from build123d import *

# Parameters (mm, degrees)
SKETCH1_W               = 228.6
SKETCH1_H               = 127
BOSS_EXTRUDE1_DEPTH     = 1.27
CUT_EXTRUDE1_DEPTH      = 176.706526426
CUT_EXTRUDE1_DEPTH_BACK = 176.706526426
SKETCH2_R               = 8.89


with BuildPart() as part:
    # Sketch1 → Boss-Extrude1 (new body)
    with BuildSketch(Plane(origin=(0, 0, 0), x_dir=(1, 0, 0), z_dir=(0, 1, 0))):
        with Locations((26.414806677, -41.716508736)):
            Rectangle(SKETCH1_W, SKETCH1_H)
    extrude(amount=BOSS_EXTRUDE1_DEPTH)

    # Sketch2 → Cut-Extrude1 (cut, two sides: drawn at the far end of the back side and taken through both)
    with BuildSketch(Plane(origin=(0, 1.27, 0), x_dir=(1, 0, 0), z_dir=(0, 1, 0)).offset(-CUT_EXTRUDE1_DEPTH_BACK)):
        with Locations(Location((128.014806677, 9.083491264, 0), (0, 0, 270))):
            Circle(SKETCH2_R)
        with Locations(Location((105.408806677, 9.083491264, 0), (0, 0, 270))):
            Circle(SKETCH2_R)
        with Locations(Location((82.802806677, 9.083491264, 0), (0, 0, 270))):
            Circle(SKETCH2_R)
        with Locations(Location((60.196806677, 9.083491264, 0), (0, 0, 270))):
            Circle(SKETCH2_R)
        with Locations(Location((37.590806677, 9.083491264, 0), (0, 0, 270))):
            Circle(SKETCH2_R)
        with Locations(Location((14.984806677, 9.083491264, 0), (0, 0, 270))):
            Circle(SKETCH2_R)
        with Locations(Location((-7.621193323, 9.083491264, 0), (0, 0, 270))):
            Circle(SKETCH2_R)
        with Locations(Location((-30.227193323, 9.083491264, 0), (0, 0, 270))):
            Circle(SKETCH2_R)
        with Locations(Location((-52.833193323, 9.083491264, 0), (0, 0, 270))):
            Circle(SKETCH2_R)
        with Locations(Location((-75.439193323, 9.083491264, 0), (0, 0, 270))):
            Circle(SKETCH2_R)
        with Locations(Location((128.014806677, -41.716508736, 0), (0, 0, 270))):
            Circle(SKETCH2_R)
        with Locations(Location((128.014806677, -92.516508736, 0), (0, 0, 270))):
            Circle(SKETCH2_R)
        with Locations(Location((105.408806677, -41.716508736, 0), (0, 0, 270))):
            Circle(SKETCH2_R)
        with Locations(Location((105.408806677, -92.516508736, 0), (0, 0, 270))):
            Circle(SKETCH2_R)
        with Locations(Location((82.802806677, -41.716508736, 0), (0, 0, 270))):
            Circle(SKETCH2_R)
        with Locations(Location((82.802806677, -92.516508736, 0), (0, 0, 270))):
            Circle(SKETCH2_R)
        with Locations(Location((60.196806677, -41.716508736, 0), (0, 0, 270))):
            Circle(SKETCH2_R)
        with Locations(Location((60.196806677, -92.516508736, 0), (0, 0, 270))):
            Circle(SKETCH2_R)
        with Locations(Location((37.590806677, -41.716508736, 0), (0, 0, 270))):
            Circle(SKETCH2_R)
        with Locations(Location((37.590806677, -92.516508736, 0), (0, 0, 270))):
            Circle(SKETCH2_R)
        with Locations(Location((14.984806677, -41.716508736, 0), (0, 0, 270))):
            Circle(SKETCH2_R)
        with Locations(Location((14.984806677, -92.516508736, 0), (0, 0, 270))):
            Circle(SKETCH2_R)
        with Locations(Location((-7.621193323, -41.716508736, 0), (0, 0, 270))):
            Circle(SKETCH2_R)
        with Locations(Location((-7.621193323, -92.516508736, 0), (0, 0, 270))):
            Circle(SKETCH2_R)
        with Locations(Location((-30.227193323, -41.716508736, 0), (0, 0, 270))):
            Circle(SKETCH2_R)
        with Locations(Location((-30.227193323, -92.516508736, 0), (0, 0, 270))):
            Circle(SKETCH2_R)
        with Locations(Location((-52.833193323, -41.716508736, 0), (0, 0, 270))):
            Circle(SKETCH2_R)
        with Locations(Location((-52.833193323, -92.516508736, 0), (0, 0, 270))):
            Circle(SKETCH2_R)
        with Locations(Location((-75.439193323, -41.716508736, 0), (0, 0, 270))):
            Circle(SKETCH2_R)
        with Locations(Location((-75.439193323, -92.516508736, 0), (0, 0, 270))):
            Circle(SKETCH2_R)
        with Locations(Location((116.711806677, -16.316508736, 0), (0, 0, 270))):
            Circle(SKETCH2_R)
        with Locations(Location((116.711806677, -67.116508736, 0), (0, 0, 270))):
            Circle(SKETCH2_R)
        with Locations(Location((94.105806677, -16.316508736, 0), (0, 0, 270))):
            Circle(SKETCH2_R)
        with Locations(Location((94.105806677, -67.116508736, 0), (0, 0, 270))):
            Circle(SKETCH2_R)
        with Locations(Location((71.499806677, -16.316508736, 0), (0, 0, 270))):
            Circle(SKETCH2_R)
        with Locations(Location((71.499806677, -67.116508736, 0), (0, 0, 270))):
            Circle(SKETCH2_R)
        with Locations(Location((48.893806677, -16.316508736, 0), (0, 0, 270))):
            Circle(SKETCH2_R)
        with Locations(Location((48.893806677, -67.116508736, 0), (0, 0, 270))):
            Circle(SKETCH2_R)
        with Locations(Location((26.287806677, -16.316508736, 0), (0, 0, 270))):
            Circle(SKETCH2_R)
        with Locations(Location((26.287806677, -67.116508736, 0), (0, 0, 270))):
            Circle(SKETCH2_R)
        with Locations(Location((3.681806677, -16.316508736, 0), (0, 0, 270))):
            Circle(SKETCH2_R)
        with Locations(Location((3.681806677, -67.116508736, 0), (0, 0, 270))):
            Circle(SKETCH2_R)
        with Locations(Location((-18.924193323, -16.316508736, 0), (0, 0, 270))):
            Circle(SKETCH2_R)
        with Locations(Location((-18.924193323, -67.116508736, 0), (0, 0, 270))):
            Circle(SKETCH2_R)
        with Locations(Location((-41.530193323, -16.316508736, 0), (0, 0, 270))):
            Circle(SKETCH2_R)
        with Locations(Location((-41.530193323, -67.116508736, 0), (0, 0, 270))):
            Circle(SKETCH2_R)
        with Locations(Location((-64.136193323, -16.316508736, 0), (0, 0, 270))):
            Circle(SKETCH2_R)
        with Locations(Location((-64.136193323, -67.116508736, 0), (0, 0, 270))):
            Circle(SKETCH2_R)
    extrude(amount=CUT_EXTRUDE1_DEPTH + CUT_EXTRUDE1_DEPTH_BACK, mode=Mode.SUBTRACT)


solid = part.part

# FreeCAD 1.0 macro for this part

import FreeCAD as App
import Part
import Sketcher
from FreeCAD import Vector
Q = App.Units.Quantity


def add_polygon(sketch, points):
    """Adds a closed chain of lines whose ends are joined by coincident constraints."""
    first, n = sketch.GeometryCount, len(points)
    for a, b in zip(points, points[1:] + points[:1]):
        sketch.addGeometry(Part.LineSegment(App.Vector(*a, 0), App.Vector(*b, 0)), False)
    for i in range(n):
        sketch.addConstraint(Sketcher.Constraint("Coincident", first + i, 2, first + (i + 1) % n, 1))

doc = App.newDocument("Part")
params = doc.addObject("Spreadsheet::Sheet", "Params")
for row, (alias, value) in enumerate([
    ("sketch1_width", "9 in"),
    ("sketch1_height", "5 in"),
    ("pad1_length", "0.05 in"),
    ("sketch2_diameter", "0.7 in"),
], start=1):
    params.set(f"A{row}", alias)
    params.set(f"B{row}", "=" + value)
    params.setAlias(f"B{row}", alias)

body = doc.addObject("PartDesign::Body", "Body")

# Sketch on XZ plane
sketch1 = body.newObject("Sketcher::SketchObject", "Sketch")
sketch1.AttachmentSupport = (doc.getObject("XZ_Plane"), [""])
sketch1.MapMode = "FlatFace"
add_polygon(sketch1, [(-88, -22), (-88, 105), (141, 105), (141, -22)])  # lines 0-3
sketch1.addConstraint([
    Sketcher.Constraint("Vertical", 0),
    Sketcher.Constraint("Horizontal", 1),
    Sketcher.Constraint("Vertical", 2),
    Sketcher.Constraint("Horizontal", 3),
    Sketcher.Constraint("DistanceX", 1, 1, 1, 2, Q("9 in")),
    Sketcher.Constraint("DistanceY", 0, 1, 0, 2, Q("5 in")),
    Sketcher.Constraint("DistanceY", -1, 1, 0, 2, 105.216509),
    Sketcher.Constraint("DistanceX", 0, 2, -1, 1, 87.885193),
])
sketch1.setExpression("Constraints[8]", "Params.sketch1_width")
sketch1.setExpression("Constraints[9]", "Params.sketch1_height")
pad1 = body.newObject("PartDesign::Pad", "Pad")
pad1.Profile = sketch1
pad1.setExpression("Length", "Params.pad1_length")
pad1.Reversed = True

# Sketch on XZ plane
sketch2 = body.newObject("Sketcher::SketchObject", "Sketch001")
sketch2.AttachmentSupport = (doc.getObject("XZ_Plane"), [""])
sketch2.MapMode = "FlatFace"
sketch2.AttachmentOffset = App.Placement(Vector(0, 0, -0.05 * 25.4), App.Rotation())
sketch2.addGeometry([
    Part.Circle(Vector(128, -9, 0), Vector(0, 0, 1), 9),  # 0
    Part.Circle(Vector(105, -9, 0), Vector(0, 0, 1), 9),  # 1
    Part.Circle(Vector(83, -9, 0), Vector(0, 0, 1), 9),  # 2
    Part.Circle(Vector(60, -9, 0), Vector(0, 0, 1), 9),  # 3
    Part.Circle(Vector(38, -9, 0), Vector(0, 0, 1), 9),  # 4
    Part.Circle(Vector(15, -9, 0), Vector(0, 0, 1), 9),  # 5
    Part.Circle(Vector(-8, -9, 0), Vector(0, 0, 1), 9),  # 6
    Part.Circle(Vector(-30, -9, 0), Vector(0, 0, 1), 9),  # 7
    Part.Circle(Vector(-53, -9, 0), Vector(0, 0, 1), 9),  # 8
    Part.Circle(Vector(-75, -9, 0), Vector(0, 0, 1), 9),  # 9
    Part.Circle(Vector(128, 42, 0), Vector(0, 0, 1), 9),  # 10
    Part.Circle(Vector(128, 93, 0), Vector(0, 0, 1), 9),  # 11
    Part.Circle(Vector(105, 42, 0), Vector(0, 0, 1), 9),  # 12
    Part.Circle(Vector(105, 93, 0), Vector(0, 0, 1), 9),  # 13
    Part.Circle(Vector(83, 42, 0), Vector(0, 0, 1), 9),  # 14
    Part.Circle(Vector(83, 93, 0), Vector(0, 0, 1), 9),  # 15
    Part.Circle(Vector(60, 42, 0), Vector(0, 0, 1), 9),  # 16
    Part.Circle(Vector(60, 93, 0), Vector(0, 0, 1), 9),  # 17
    Part.Circle(Vector(38, 42, 0), Vector(0, 0, 1), 9),  # 18
    Part.Circle(Vector(38, 93, 0), Vector(0, 0, 1), 9),  # 19
    Part.Circle(Vector(15, 42, 0), Vector(0, 0, 1), 9),  # 20
    Part.Circle(Vector(15, 93, 0), Vector(0, 0, 1), 9),  # 21
    Part.Circle(Vector(-8, 42, 0), Vector(0, 0, 1), 9),  # 22
    Part.Circle(Vector(-8, 93, 0), Vector(0, 0, 1), 9),  # 23
    Part.Circle(Vector(-30, 42, 0), Vector(0, 0, 1), 9),  # 24
    Part.Circle(Vector(-30, 93, 0), Vector(0, 0, 1), 9),  # 25
    Part.Circle(Vector(-53, 42, 0), Vector(0, 0, 1), 9),  # 26
    Part.Circle(Vector(-53, 93, 0), Vector(0, 0, 1), 9),  # 27
    Part.Circle(Vector(-75, 42, 0), Vector(0, 0, 1), 9),  # 28
    Part.Circle(Vector(-75, 93, 0), Vector(0, 0, 1), 9),  # 29
    Part.Circle(Vector(117, 16, 0), Vector(0, 0, 1), 9),  # 30
    Part.Circle(Vector(117, 67, 0), Vector(0, 0, 1), 9),  # 31
    Part.Circle(Vector(94, 16, 0), Vector(0, 0, 1), 9),  # 32
    Part.Circle(Vector(94, 67, 0), Vector(0, 0, 1), 9),  # 33
    Part.Circle(Vector(71, 16, 0), Vector(0, 0, 1), 9),  # 34
    Part.Circle(Vector(71, 67, 0), Vector(0, 0, 1), 9),  # 35
    Part.Circle(Vector(49, 16, 0), Vector(0, 0, 1), 9),  # 36
    Part.Circle(Vector(49, 67, 0), Vector(0, 0, 1), 9),  # 37
    Part.Circle(Vector(26, 16, 0), Vector(0, 0, 1), 9),  # 38
    Part.Circle(Vector(26, 67, 0), Vector(0, 0, 1), 9),  # 39
    Part.Circle(Vector(4, 16, 0), Vector(0, 0, 1), 9),  # 40
    Part.Circle(Vector(4, 67, 0), Vector(0, 0, 1), 9),  # 41
    Part.Circle(Vector(-19, 16, 0), Vector(0, 0, 1), 9),  # 42
    Part.Circle(Vector(-19, 67, 0), Vector(0, 0, 1), 9),  # 43
    Part.Circle(Vector(-42, 16, 0), Vector(0, 0, 1), 9),  # 44
    Part.Circle(Vector(-42, 67, 0), Vector(0, 0, 1), 9),  # 45
    Part.Circle(Vector(-64, 16, 0), Vector(0, 0, 1), 9),  # 46
    Part.Circle(Vector(-64, 67, 0), Vector(0, 0, 1), 9),  # 47
], False)
sketch2.addConstraint([
    Sketcher.Constraint("Equal", 0, 1),
    Sketcher.Constraint("Equal", 1, 2),
    Sketcher.Constraint("Equal", 2, 3),
    Sketcher.Constraint("Equal", 3, 4),
    Sketcher.Constraint("Equal", 4, 5),
    Sketcher.Constraint("Equal", 5, 6),
    Sketcher.Constraint("Equal", 6, 7),
    Sketcher.Constraint("Equal", 7, 8),
    Sketcher.Constraint("Equal", 8, 9),
    Sketcher.Constraint("Equal", 9, 10),
    Sketcher.Constraint("Equal", 10, 11),
    Sketcher.Constraint("Equal", 11, 12),
    Sketcher.Constraint("Equal", 12, 13),
    Sketcher.Constraint("Equal", 13, 14),
    Sketcher.Constraint("Equal", 14, 15),
    Sketcher.Constraint("Equal", 15, 16),
    Sketcher.Constraint("Equal", 16, 17),
    Sketcher.Constraint("Equal", 17, 18),
    Sketcher.Constraint("Equal", 18, 19),
    Sketcher.Constraint("Equal", 19, 20),
    Sketcher.Constraint("Equal", 20, 21),
    Sketcher.Constraint("Equal", 21, 22),
    Sketcher.Constraint("Equal", 22, 23),
    Sketcher.Constraint("Equal", 23, 24),
    Sketcher.Constraint("Equal", 24, 25),
    Sketcher.Constraint("Equal", 25, 26),
    Sketcher.Constraint("Equal", 26, 27),
    Sketcher.Constraint("Equal", 27, 28),
    Sketcher.Constraint("Equal", 28, 29),
    Sketcher.Constraint("Equal", 29, 30),
    Sketcher.Constraint("Equal", 30, 31),
    Sketcher.Constraint("Equal", 31, 32),
    Sketcher.Constraint("Equal", 32, 33),
    Sketcher.Constraint("Equal", 33, 34),
    Sketcher.Constraint("Equal", 34, 35),
    Sketcher.Constraint("Equal", 35, 36),
    Sketcher.Constraint("Equal", 36, 37),
    Sketcher.Constraint("Equal", 37, 38),
    Sketcher.Constraint("Equal", 38, 39),
    Sketcher.Constraint("Equal", 39, 40),
    Sketcher.Constraint("Equal", 40, 41),
    Sketcher.Constraint("Equal", 41, 42),
    Sketcher.Constraint("Equal", 42, 43),
    Sketcher.Constraint("Equal", 43, 44),
    Sketcher.Constraint("Equal", 44, 45),
    Sketcher.Constraint("Equal", 45, 46),
    Sketcher.Constraint("Equal", 46, 47),
    Sketcher.Constraint("Horizontal", 0, 3, 1, 3),
    Sketcher.Constraint("Horizontal", 1, 3, 2, 3),
    Sketcher.Constraint("Horizontal", 2, 3, 3, 3),
    Sketcher.Constraint("Horizontal", 3, 3, 4, 3),
    Sketcher.Constraint("Horizontal", 4, 3, 5, 3),
    Sketcher.Constraint("Horizontal", 5, 3, 6, 3),
    Sketcher.Constraint("Horizontal", 6, 3, 7, 3),
    Sketcher.Constraint("Horizontal", 7, 3, 8, 3),
    Sketcher.Constraint("Horizontal", 8, 3, 9, 3),
    Sketcher.Constraint("Horizontal", 10, 3, 12, 3),
    Sketcher.Constraint("Horizontal", 11, 3, 13, 3),
    Sketcher.Constraint("Horizontal", 12, 3, 14, 3),
    Sketcher.Constraint("Horizontal", 13, 3, 15, 3),
    Sketcher.Constraint("Horizontal", 14, 3, 16, 3),
    Sketcher.Constraint("Horizontal", 15, 3, 17, 3),
    Sketcher.Constraint("Horizontal", 16, 3, 18, 3),
    Sketcher.Constraint("Horizontal", 17, 3, 19, 3),
    Sketcher.Constraint("Horizontal", 18, 3, 20, 3),
    Sketcher.Constraint("Horizontal", 19, 3, 21, 3),
    Sketcher.Constraint("Horizontal", 20, 3, 22, 3),
    Sketcher.Constraint("Horizontal", 21, 3, 23, 3),
    Sketcher.Constraint("Horizontal", 22, 3, 24, 3),
    Sketcher.Constraint("Horizontal", 23, 3, 25, 3),
    Sketcher.Constraint("Horizontal", 24, 3, 26, 3),
    Sketcher.Constraint("Horizontal", 25, 3, 27, 3),
    Sketcher.Constraint("Horizontal", 26, 3, 28, 3),
    Sketcher.Constraint("Horizontal", 27, 3, 29, 3),
    Sketcher.Constraint("Horizontal", 30, 3, 32, 3),
    Sketcher.Constraint("Horizontal", 31, 3, 33, 3),
    Sketcher.Constraint("Horizontal", 32, 3, 34, 3),
    Sketcher.Constraint("Horizontal", 33, 3, 35, 3),
    Sketcher.Constraint("Horizontal", 34, 3, 36, 3),
    Sketcher.Constraint("Horizontal", 35, 3, 37, 3),
    Sketcher.Constraint("Horizontal", 36, 3, 38, 3),
    Sketcher.Constraint("Horizontal", 37, 3, 39, 3),
    Sketcher.Constraint("Horizontal", 38, 3, 40, 3),
    Sketcher.Constraint("Horizontal", 39, 3, 41, 3),
    Sketcher.Constraint("Horizontal", 40, 3, 42, 3),
    Sketcher.Constraint("Horizontal", 41, 3, 43, 3),
    Sketcher.Constraint("Horizontal", 42, 3, 44, 3),
    Sketcher.Constraint("Horizontal", 43, 3, 45, 3),
    Sketcher.Constraint("Horizontal", 44, 3, 46, 3),
    Sketcher.Constraint("Horizontal", 45, 3, 47, 3),
    Sketcher.Constraint("Vertical", 0, 3, 10, 3),
    Sketcher.Constraint("Vertical", 10, 3, 11, 3),
    Sketcher.Constraint("Vertical", 1, 3, 12, 3),
    Sketcher.Constraint("Vertical", 12, 3, 13, 3),
    Sketcher.Constraint("Vertical", 2, 3, 14, 3),
    Sketcher.Constraint("Vertical", 14, 3, 15, 3),
    Sketcher.Constraint("Vertical", 3, 3, 16, 3),
    Sketcher.Constraint("Vertical", 16, 3, 17, 3),
    Sketcher.Constraint("Vertical", 4, 3, 18, 3),
    Sketcher.Constraint("Vertical", 18, 3, 19, 3),
    Sketcher.Constraint("Vertical", 5, 3, 20, 3),
    Sketcher.Constraint("Vertical", 20, 3, 21, 3),
    Sketcher.Constraint("Vertical", 6, 3, 22, 3),
    Sketcher.Constraint("Vertical", 22, 3, 23, 3),
    Sketcher.Constraint("Vertical", 7, 3, 24, 3),
    Sketcher.Constraint("Vertical", 24, 3, 25, 3),
    Sketcher.Constraint("Vertical", 8, 3, 26, 3),
    Sketcher.Constraint("Vertical", 26, 3, 27, 3),
    Sketcher.Constraint("Vertical", 9, 3, 28, 3),
    Sketcher.Constraint("Vertical", 28, 3, 29, 3),
    Sketcher.Constraint("Vertical", 30, 3, 31, 3),
    Sketcher.Constraint("Vertical", 32, 3, 33, 3),
    Sketcher.Constraint("Vertical", 34, 3, 35, 3),
    Sketcher.Constraint("Vertical", 36, 3, 37, 3),
    Sketcher.Constraint("Vertical", 38, 3, 39, 3),
    Sketcher.Constraint("Vertical", 40, 3, 41, 3),
    Sketcher.Constraint("Vertical", 42, 3, 43, 3),
    Sketcher.Constraint("Vertical", 44, 3, 45, 3),
    Sketcher.Constraint("Vertical", 46, 3, 47, 3),
    Sketcher.Constraint("Diameter", 0, Q("0.7 in")),
    Sketcher.Constraint("DistanceY", 0, 3, 10, 3, Q("2 in")),
    Sketcher.Constraint("DistanceY", 10, 3, 11, 3, Q("2 in")),
    Sketcher.Constraint("DistanceY", 0, 3, 30, 3, Q("1 in")),
    Sketcher.Constraint("DistanceY", 10, 3, 31, 3, Q("1 in")),
    Sketcher.Constraint("DistanceX", 1, 3, 0, 3, Q("0.89 in")),
    Sketcher.Constraint("DistanceX", 2, 3, 1, 3, Q("0.89 in")),
    Sketcher.Constraint("DistanceX", 3, 3, 2, 3, Q("0.89 in")),
    Sketcher.Constraint("DistanceX", 4, 3, 3, 3, Q("0.89 in")),
    Sketcher.Constraint("DistanceX", 5, 3, 4, 3, Q("0.89 in")),
    Sketcher.Constraint("DistanceX", 6, 3, 5, 3, Q("0.89 in")),
    Sketcher.Constraint("DistanceX", 7, 3, 6, 3, Q("0.89 in")),
    Sketcher.Constraint("DistanceX", 8, 3, 7, 3, Q("0.89 in")),
    Sketcher.Constraint("DistanceX", 9, 3, 8, 3, Q("0.89 in")),
    Sketcher.Constraint("DistanceX", 32, 3, 30, 3, Q("0.89 in")),
    Sketcher.Constraint("DistanceX", 34, 3, 32, 3, Q("0.89 in")),
    Sketcher.Constraint("DistanceX", 36, 3, 34, 3, Q("0.89 in")),
    Sketcher.Constraint("DistanceX", 38, 3, 36, 3, Q("0.89 in")),
    Sketcher.Constraint("DistanceX", 40, 3, 38, 3, Q("0.89 in")),
    Sketcher.Constraint("DistanceX", 42, 3, 40, 3, Q("0.89 in")),
    Sketcher.Constraint("DistanceX", 44, 3, 42, 3, Q("0.89 in")),
    Sketcher.Constraint("DistanceX", 46, 3, 44, 3, Q("0.89 in")),
    Sketcher.Constraint("DistanceX", 30, 3, 0, 3, Q("0.445 in")),
    Sketcher.Constraint("DistanceY", 0, 3, -1, 1, 9.083491),
    Sketcher.Constraint("DistanceX", -1, 1, 0, 3, 128.014807),
])
sketch2.setExpression("Constraints[119]", "Params.sketch2_diameter")
pocket1 = body.newObject("PartDesign::Pocket", "Pocket")
pocket1.Profile = sketch2
pocket1.Type = "ThroughAll"
pocket1.Midplane = True

doc.recompute()
